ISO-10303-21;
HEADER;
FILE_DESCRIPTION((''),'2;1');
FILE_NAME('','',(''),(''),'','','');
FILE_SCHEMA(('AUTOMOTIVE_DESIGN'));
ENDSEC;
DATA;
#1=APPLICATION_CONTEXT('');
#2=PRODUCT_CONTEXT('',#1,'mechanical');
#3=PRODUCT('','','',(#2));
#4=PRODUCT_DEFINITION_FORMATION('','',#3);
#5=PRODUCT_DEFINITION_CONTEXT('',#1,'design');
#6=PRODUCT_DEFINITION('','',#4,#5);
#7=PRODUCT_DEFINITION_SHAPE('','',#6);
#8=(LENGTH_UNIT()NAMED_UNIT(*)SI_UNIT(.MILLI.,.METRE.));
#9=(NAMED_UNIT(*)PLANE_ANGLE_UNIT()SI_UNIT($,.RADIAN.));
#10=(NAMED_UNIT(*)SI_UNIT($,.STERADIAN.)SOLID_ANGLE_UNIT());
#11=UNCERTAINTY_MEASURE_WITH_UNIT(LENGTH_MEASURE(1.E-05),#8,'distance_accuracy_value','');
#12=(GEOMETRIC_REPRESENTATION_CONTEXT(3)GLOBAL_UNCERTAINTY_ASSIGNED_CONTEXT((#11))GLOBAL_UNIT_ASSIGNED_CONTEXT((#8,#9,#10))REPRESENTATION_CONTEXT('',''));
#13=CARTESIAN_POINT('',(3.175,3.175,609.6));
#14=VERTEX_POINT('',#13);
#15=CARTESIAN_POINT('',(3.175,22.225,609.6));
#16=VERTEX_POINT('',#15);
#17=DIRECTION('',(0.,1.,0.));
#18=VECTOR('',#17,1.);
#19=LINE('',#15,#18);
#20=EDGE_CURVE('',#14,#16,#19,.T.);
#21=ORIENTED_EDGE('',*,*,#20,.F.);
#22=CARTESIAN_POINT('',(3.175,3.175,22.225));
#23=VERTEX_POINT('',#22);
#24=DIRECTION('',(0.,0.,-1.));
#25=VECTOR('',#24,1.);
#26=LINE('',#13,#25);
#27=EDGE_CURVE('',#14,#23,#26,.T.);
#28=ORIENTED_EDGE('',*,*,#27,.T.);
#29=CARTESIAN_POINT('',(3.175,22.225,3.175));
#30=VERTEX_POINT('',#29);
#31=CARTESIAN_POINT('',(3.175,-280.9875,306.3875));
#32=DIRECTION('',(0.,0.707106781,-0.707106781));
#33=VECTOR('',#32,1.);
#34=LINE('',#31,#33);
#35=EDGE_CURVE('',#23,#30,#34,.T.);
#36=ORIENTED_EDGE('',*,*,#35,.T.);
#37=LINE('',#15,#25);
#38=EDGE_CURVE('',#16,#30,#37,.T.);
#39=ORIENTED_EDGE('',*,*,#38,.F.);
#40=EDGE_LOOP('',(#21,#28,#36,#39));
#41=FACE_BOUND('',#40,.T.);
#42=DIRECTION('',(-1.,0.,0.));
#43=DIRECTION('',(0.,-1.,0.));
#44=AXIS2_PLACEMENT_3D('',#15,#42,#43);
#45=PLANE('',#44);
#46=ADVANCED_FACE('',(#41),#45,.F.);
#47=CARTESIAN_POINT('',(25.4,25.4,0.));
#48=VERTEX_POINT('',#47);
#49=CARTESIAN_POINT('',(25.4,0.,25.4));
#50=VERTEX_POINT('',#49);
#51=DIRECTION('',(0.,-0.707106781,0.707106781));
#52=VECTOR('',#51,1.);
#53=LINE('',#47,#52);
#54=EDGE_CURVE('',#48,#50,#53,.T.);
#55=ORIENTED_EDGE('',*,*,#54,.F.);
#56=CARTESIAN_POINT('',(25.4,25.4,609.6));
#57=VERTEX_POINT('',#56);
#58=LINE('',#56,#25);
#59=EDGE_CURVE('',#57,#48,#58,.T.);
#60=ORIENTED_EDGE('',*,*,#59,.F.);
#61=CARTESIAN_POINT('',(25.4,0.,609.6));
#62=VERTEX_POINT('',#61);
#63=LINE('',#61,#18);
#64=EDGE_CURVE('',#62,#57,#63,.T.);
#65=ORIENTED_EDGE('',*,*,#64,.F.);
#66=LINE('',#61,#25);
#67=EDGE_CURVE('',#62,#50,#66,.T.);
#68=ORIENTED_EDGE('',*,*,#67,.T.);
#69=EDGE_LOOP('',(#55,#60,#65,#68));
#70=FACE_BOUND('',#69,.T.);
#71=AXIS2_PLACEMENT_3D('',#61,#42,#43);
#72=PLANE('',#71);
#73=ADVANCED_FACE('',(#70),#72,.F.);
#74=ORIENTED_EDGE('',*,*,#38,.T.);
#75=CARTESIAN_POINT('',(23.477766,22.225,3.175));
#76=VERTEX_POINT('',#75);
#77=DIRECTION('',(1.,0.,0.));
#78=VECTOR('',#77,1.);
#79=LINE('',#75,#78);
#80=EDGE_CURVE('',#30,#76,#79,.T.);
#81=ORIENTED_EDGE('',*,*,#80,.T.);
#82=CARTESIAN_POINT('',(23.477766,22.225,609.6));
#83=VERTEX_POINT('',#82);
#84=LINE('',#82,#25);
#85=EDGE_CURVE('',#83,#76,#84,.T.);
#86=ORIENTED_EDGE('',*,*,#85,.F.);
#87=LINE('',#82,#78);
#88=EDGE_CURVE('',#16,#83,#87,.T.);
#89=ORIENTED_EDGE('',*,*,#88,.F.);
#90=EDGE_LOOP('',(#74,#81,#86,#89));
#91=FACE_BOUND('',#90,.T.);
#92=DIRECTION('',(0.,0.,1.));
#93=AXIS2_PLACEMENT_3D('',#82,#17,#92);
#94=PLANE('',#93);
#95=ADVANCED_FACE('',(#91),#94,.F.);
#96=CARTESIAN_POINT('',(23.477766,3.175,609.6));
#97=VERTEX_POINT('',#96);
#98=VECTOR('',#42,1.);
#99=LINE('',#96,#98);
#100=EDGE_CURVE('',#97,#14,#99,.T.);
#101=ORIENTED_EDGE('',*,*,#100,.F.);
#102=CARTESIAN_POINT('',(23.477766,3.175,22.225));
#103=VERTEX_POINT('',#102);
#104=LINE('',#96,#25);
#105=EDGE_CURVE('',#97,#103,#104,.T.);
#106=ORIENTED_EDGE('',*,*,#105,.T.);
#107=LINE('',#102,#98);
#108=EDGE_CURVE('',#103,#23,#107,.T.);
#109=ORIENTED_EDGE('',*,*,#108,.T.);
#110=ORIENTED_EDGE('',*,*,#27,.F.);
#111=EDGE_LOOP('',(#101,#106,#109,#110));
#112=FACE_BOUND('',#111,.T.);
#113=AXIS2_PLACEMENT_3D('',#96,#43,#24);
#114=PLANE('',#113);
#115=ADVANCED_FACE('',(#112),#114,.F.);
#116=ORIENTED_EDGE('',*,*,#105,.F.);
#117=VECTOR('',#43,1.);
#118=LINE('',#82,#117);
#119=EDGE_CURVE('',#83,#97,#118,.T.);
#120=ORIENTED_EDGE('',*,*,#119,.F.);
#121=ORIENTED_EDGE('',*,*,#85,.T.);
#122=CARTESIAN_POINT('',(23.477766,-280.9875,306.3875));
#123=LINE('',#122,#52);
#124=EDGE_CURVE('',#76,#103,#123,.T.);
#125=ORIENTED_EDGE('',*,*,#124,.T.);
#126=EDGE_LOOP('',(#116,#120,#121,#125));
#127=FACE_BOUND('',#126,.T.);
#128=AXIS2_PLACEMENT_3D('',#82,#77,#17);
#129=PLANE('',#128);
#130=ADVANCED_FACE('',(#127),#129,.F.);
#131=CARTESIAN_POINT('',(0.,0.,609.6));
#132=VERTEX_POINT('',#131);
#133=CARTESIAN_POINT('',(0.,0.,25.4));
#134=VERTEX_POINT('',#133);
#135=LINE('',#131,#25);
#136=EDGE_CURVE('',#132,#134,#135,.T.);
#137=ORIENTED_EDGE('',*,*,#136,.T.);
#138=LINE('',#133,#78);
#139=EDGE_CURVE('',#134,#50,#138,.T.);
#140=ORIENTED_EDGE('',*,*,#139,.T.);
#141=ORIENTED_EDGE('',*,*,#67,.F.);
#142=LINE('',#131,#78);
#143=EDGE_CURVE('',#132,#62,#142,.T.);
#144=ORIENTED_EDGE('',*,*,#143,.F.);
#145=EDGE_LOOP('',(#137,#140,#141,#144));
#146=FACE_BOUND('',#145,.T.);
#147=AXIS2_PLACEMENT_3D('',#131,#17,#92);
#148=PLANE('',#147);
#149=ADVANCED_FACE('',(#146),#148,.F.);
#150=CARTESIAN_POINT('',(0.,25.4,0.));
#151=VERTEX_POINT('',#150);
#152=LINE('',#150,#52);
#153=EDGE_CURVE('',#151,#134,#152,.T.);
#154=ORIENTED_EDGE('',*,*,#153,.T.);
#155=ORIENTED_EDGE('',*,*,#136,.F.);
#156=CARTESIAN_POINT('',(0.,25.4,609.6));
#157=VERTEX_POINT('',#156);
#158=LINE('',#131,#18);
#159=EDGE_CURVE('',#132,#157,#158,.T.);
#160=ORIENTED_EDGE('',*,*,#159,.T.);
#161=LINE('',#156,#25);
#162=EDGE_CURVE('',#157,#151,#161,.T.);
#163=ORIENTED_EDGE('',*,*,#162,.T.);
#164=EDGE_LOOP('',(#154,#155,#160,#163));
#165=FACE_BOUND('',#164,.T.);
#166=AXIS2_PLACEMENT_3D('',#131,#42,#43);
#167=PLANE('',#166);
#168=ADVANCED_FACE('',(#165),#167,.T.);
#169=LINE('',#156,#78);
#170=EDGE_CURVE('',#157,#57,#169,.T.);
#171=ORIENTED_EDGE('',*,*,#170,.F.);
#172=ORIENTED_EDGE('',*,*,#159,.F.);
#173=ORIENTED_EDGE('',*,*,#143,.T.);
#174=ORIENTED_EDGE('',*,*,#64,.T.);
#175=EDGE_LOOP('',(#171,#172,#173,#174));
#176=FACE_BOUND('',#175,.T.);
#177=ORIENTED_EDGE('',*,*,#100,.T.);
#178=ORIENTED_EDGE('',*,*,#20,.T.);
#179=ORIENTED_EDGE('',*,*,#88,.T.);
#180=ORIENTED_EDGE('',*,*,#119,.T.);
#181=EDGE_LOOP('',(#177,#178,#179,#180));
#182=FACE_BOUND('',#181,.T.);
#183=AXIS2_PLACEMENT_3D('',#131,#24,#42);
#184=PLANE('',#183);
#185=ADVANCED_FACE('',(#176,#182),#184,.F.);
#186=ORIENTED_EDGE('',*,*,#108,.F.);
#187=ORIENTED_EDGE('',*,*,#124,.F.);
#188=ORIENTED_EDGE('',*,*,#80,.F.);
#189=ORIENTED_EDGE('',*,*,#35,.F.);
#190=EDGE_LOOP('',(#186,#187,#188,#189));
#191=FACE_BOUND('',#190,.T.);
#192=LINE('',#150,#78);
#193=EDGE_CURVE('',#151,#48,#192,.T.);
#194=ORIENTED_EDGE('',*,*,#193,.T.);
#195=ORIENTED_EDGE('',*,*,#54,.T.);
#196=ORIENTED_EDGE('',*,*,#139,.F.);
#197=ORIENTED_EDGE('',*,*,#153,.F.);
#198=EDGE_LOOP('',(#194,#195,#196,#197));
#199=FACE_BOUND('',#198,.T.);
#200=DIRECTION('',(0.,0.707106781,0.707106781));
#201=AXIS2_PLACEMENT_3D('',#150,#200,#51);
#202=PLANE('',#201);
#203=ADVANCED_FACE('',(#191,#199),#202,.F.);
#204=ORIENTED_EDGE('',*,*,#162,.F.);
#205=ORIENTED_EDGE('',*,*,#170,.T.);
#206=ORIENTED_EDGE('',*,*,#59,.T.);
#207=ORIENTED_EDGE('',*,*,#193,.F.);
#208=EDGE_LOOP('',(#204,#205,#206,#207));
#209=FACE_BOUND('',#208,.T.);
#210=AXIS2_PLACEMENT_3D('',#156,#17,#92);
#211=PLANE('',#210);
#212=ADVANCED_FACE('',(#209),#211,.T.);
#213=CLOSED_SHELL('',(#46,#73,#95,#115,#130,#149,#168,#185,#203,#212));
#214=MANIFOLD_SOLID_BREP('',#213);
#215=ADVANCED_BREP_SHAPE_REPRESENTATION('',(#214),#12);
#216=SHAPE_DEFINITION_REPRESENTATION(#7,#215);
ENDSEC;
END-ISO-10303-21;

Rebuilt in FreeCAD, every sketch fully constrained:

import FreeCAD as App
import Part
import Sketcher

V = App.Vector
Q = App.Units.Quantity

doc = App.newDocument("Part")
body = doc.addObject("PartDesign::Body", "Body")

# Sketch on XY plane
sketch1 = doc.addObject("Sketcher::SketchObject", "Sketch")
body.addObject(sketch1)
sketch1.AttachmentSupport = (doc.XY_Plane, [""])
sketch1.MapMode = "FlatFace"
sketch1.addGeometry([
    Part.LineSegment(V(0, 25, 0), V(0, 0, 0)),
    Part.LineSegment(V(0, 0, 0), V(25, 0, 0)),
    Part.LineSegment(V(25, 0, 0), V(25, 25, 0)),
    Part.LineSegment(V(25, 25, 0), V(0, 25, 0)),
], False)
sketch1.addConstraint([
    Sketcher.Constraint("Coincident", 0, 2, 1, 1),
    Sketcher.Constraint("Coincident", 1, 2, 2, 1),
    Sketcher.Constraint("Coincident", 2, 2, 3, 1),
    Sketcher.Constraint("Coincident", 3, 2, 0, 1),
    Sketcher.Constraint("Vertical", 0),
    Sketcher.Constraint("Horizontal", 1),
    Sketcher.Constraint("Vertical", 2),
    Sketcher.Constraint("Horizontal", 3),
    Sketcher.Constraint("Coincident", 0, 2, -1, 1),
    Sketcher.Constraint("Equal", 3, 0),
    Sketcher.Constraint("DistanceX", 1, 1, 1, 2, Q("1 in")),
])
pad1 = doc.addObject("PartDesign::Pad", "Pad")
body.addObject(pad1)
pad1.Profile = sketch1
pad1.Length = Q("24 in")

# Sketch on XY plane
sketch2 = doc.addObject("Sketcher::SketchObject", "Sketch001")
body.addObject(sketch2)
sketch2.AttachmentSupport = (doc.XY_Plane, [""])
sketch2.MapMode = "FlatFace"
sketch2.addGeometry([
    Part.LineSegment(V(23, 22, 0), V(23, 3, 0)),
    Part.LineSegment(V(23, 3, 0), V(3, 3, 0)),
    Part.LineSegment(V(3, 3, 0), V(3, 22, 0)),
    Part.LineSegment(V(3, 22, 0), V(23, 22, 0)),
], False)
sketch2.addConstraint([
    Sketcher.Constraint("Coincident", 0, 2, 1, 1),
    Sketcher.Constraint("Coincident", 1, 2, 2, 1),
    Sketcher.Constraint("Coincident", 2, 2, 3, 1),
    Sketcher.Constraint("Coincident", 3, 2, 0, 1),
    Sketcher.Constraint("Vertical", 0),
    Sketcher.Constraint("Horizontal", 1),
    Sketcher.Constraint("Vertical", 2),
    Sketcher.Constraint("Horizontal", 3),
    Sketcher.Constraint("DistanceY", 0, 2, 0, 1, Q("0.75 in")),
    Sketcher.Constraint("DistanceY", -1, 1, 0, 2, Q("0.125 in")),
    Sketcher.Constraint("DistanceX", -1, 1, 1, 2, Q("0.125 in")),
    Sketcher.Constraint("DistanceX", 1, 2, 1, 1, Q("20.302766 mm")),
])
pocket1 = doc.addObject("PartDesign::Pocket", "Pocket")
body.addObject(pocket1)
pocket1.Profile = sketch2
pocket1.Type = "ThroughAll"
pocket1.Reversed = True

# Sketch on YZ plane
sketch3 = doc.addObject("Sketcher::SketchObject", "Sketch002")
body.addObject(sketch3)
sketch3.AttachmentSupport = (doc.YZ_Plane, [""])
sketch3.MapMode = "FlatFace"
sketch3.AttachmentOffset = App.Placement(V(0, 0, 1 * 25.4), App.Rotation())
sketch3.addGeometry([
    Part.LineSegment(V(25, 0, 0), V(0, 25, 0)),
    Part.LineSegment(V(0, 25, 0), V(0, 0, 0)),
    Part.LineSegment(V(0, 0, 0), V(25, 0, 0)),
], False)
sketch3.addConstraint([
    Sketcher.Constraint("Coincident", 0, 2, 1, 1),
    Sketcher.Constraint("Coincident", 1, 2, 2, 1),
    Sketcher.Constraint("Coincident", 2, 2, 0, 1),
    Sketcher.Constraint("Vertical", 1),
    Sketcher.Constraint("Horizontal", 2),
    Sketcher.Constraint("Coincident", 1, 2, -1, 1),
    Sketcher.Constraint("Equal", 2, 1),
    Sketcher.Constraint("DistanceX", 2, 1, 2, 2, Q("1 in")),
])
pocket2 = doc.addObject("PartDesign::Pocket", "Pocket001")
body.addObject(pocket2)
pocket2.Profile = sketch3
pocket2.Type = "ThroughAll"

doc.recompute()
